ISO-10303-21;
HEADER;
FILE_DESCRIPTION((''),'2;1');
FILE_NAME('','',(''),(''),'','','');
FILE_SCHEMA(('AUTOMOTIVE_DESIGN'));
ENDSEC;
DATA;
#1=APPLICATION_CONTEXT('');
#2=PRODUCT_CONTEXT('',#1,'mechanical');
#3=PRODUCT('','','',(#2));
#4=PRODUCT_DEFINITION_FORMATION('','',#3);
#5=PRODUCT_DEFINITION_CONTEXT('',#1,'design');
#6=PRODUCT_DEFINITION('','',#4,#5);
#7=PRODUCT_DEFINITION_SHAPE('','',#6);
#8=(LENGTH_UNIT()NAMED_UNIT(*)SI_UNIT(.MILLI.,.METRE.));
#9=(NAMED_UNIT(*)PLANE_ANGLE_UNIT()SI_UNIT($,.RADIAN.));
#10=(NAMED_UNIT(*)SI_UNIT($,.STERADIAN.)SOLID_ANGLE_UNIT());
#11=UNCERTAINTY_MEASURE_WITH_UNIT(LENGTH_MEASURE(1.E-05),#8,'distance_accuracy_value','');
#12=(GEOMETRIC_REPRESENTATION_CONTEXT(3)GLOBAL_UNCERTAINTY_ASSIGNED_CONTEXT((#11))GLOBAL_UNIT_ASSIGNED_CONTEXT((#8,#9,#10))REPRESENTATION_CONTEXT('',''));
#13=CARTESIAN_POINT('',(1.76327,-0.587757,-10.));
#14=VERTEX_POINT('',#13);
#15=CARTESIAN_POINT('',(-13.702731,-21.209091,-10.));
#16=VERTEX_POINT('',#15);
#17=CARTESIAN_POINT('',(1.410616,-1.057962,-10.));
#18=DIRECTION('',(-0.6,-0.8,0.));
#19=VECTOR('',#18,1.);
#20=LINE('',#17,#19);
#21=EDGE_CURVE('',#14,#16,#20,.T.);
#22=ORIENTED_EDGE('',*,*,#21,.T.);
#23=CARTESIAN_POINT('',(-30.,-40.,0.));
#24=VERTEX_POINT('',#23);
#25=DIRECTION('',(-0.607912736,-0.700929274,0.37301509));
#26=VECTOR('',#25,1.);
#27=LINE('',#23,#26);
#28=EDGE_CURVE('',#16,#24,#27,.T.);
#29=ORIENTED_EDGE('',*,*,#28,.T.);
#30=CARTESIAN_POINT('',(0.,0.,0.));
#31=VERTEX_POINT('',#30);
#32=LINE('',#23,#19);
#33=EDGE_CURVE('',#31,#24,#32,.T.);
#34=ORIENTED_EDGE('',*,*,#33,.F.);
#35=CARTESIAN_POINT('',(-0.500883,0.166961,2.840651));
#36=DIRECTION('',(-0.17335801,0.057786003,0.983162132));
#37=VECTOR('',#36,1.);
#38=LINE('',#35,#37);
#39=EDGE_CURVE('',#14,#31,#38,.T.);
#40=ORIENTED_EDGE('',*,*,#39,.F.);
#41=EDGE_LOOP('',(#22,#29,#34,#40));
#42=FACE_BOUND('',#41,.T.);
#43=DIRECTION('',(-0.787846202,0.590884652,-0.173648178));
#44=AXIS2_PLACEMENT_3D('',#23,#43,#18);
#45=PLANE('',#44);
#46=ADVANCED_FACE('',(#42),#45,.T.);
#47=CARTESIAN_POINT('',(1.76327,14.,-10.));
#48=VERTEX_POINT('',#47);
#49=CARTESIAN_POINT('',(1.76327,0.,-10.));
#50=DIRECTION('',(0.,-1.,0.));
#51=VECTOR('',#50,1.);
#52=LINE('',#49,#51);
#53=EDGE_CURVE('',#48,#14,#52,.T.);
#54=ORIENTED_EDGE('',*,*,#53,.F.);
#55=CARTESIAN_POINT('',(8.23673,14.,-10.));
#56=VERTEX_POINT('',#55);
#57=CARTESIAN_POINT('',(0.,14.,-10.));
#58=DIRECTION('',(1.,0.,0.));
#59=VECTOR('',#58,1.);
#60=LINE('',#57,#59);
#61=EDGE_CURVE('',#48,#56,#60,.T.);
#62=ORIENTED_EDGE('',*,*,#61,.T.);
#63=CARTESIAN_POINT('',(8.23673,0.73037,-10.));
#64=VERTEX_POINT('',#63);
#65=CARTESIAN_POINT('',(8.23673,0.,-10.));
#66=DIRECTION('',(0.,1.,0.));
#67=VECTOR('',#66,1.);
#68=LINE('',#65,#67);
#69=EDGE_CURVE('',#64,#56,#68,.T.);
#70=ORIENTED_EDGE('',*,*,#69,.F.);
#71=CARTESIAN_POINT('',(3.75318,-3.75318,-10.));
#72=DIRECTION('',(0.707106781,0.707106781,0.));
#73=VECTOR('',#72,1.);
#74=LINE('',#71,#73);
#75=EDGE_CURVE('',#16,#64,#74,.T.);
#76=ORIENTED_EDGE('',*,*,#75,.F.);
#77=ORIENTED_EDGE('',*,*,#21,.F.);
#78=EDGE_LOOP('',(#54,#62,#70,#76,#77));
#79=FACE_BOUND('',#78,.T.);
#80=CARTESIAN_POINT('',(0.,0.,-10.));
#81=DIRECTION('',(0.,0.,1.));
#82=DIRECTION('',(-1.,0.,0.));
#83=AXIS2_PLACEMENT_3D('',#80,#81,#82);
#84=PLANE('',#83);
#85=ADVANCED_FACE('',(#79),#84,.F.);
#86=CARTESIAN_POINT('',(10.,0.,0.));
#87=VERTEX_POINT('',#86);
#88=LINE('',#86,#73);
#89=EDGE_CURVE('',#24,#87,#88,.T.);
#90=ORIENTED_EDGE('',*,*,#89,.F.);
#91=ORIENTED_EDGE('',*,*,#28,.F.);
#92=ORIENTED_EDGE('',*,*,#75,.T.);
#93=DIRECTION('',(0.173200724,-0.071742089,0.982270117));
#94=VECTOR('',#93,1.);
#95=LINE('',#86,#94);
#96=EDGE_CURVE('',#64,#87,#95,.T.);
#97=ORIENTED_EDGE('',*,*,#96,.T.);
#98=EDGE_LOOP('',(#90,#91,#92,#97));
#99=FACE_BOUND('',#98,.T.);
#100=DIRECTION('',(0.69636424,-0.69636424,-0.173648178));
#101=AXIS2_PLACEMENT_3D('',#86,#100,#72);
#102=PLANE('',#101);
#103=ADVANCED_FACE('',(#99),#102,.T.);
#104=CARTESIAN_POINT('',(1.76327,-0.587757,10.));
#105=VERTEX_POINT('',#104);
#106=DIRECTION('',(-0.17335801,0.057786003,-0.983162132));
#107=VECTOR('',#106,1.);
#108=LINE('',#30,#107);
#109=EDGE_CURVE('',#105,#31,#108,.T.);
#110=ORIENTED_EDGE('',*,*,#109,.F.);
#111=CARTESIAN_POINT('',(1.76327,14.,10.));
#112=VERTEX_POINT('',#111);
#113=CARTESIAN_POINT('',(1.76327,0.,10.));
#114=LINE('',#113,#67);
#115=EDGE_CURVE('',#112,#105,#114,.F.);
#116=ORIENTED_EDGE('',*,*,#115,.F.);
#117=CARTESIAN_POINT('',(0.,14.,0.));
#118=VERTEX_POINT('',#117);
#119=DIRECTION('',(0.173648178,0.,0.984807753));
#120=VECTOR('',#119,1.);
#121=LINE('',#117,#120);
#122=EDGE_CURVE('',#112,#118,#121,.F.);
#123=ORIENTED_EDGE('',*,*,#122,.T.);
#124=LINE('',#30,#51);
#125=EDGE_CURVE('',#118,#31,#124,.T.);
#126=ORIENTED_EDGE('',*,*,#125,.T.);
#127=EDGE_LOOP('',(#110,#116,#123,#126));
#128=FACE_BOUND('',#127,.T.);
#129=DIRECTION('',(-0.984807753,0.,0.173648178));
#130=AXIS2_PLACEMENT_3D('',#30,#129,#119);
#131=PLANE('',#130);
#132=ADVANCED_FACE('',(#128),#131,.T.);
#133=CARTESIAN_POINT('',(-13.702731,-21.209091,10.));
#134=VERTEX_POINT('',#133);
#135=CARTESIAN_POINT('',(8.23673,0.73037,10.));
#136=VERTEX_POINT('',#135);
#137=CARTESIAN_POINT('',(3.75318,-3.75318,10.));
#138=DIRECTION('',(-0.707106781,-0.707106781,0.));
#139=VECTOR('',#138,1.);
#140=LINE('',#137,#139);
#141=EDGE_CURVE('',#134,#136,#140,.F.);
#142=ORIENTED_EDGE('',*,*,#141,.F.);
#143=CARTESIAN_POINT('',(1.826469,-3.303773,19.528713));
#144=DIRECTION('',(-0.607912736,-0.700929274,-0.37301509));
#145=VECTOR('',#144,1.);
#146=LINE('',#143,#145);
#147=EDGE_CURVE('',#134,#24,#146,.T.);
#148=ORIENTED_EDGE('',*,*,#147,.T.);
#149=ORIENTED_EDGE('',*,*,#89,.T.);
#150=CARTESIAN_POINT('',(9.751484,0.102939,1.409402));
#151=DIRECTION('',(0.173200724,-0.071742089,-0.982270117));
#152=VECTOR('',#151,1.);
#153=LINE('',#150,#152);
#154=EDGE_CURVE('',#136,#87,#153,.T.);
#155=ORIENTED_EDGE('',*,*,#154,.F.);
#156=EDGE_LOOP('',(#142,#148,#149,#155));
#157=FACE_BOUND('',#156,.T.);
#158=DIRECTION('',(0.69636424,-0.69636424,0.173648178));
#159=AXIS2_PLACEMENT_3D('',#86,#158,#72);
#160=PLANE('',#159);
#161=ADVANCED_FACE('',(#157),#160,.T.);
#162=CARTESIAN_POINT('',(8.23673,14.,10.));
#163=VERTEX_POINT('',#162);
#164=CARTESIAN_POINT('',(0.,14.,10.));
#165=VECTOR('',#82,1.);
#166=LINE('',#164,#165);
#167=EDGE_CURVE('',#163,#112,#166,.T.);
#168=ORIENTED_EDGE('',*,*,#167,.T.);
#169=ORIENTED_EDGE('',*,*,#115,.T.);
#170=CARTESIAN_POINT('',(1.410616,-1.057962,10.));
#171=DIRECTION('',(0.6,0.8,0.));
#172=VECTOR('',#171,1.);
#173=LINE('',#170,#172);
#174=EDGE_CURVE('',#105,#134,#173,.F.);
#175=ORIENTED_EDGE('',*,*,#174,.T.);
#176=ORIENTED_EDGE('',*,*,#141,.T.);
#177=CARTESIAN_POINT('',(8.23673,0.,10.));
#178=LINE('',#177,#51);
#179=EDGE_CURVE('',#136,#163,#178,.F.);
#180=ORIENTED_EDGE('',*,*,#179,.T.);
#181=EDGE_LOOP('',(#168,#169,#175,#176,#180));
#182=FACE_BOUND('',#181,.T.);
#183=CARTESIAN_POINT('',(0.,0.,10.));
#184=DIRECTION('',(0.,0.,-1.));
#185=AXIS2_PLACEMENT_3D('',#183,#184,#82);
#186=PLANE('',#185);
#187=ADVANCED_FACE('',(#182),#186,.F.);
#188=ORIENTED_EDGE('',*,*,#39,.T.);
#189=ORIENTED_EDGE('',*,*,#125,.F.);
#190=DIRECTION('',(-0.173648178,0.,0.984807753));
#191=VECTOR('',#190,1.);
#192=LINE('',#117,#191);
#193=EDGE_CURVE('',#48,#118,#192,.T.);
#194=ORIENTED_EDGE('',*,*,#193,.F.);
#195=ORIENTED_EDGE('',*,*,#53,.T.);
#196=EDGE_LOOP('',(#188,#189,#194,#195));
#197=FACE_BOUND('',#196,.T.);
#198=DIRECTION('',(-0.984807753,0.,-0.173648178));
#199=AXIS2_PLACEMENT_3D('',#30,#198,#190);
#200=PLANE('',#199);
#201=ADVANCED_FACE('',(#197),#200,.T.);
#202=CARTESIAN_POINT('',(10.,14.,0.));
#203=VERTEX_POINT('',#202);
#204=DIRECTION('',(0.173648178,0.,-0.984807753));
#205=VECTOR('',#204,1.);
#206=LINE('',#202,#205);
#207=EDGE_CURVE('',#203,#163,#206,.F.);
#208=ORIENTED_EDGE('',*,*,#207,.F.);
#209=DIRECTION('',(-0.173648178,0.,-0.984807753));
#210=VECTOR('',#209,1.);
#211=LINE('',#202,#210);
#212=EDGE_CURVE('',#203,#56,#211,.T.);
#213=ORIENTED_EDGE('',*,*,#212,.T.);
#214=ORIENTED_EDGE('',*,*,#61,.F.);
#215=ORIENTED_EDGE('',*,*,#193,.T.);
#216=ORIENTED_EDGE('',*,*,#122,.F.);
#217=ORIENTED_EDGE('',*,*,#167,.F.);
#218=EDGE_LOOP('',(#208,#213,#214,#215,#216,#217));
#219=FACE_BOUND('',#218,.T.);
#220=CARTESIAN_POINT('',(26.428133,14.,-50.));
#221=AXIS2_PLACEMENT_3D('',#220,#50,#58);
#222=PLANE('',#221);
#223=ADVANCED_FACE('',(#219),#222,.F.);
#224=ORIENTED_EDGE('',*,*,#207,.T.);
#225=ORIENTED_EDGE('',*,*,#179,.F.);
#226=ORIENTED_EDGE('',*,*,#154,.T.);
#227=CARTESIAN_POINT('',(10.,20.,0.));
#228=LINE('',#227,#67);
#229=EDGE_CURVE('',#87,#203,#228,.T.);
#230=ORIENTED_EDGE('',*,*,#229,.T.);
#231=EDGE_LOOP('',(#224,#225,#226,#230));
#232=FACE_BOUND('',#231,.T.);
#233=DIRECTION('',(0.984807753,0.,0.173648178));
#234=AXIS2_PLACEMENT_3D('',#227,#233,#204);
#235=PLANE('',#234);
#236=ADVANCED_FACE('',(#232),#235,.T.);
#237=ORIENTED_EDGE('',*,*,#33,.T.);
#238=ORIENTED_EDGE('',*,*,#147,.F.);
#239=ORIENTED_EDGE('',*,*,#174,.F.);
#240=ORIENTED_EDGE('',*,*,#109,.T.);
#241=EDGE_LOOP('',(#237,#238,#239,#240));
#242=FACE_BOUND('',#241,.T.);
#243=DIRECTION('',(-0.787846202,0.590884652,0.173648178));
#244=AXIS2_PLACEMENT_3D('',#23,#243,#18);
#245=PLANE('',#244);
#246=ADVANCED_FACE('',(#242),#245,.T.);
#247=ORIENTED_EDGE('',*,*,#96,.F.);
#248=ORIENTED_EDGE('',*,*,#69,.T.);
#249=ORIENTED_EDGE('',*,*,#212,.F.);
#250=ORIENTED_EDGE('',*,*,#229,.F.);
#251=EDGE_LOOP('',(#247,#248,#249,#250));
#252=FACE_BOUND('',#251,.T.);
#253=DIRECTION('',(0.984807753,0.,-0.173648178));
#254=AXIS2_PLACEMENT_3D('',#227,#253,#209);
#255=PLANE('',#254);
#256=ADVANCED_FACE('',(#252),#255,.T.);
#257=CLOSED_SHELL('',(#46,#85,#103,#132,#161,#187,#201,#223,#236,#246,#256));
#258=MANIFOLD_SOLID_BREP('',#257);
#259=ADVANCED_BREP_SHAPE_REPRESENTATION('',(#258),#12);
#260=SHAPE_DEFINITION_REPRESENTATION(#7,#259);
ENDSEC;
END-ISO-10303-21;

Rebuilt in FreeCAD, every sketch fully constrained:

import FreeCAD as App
import Part
import Sketcher
from FreeCAD import Vector
Q = App.Units.Quantity


def faces_at(feature, points):
    """Names of the faces that lie closest to the given points."""
    faces = feature.Shape.Faces
    near = lambda p: min(range(len(faces)), key=lambda i: faces[i].distToShape(Part.Vertex(*p))[0])
    return sorted({f"Face{near(p) + 1}" for p in points})


def add_polygon(sketch, points):
    """Adds a closed chain of lines whose ends are joined by coincident constraints."""
    first, n = sketch.GeometryCount, len(points)
    for a, b in zip(points, points[1:] + points[:1]):
        sketch.addGeometry(Part.LineSegment(App.Vector(*a, 0), App.Vector(*b, 0)), False)
    for i in range(n):
        sketch.addConstraint(Sketcher.Constraint("Coincident", first + i, 2, first + (i + 1) % n, 1))

doc = App.newDocument("Part")
params = doc.addObject("Spreadsheet::Sheet", "Params")
for row, (alias, value) in enumerate([
    ("sketch1_width", "10 mm"),
    ("sketch1_height", "20 mm"),
    ("sketch1_length", "50 mm"),
    ("pad1_length", "10 mm"),
    ("draft_angle", "10 deg"),
    ("sketch2_width", "10 mm"),
    ("sketch2_height", "20 mm"),
    ("sketch2_length", "50 mm"),
    ("pad2_length", "10 mm"),
    ("draft2_angle", "10 deg"),
    ("pocket1_length", "100 mm"),
], start=1):
    params.set(f"A{row}", alias)
    params.set(f"B{row}", "=" + value)
    params.setAlias(f"B{row}", alias)

body = doc.addObject("PartDesign::Body", "Body")

# Sketch on XY plane
sketch1 = body.newObject("Sketcher::SketchObject", "Sketch")
sketch1.AttachmentSupport = (doc.getObject("XY_Plane"), [""])
sketch1.MapMode = "FlatFace"
add_polygon(sketch1, [(0, 0), (-30, -40), (10, 0), (10, 20), (0, 20)])  # lines 0-4
sketch1.addConstraint([
    Sketcher.Constraint("Vertical", 2),
    Sketcher.Constraint("Horizontal", 3),
    Sketcher.Constraint("Vertical", 4),
    Sketcher.Constraint("Coincident", 4, 2, -1, 1),
    Sketcher.Constraint("PointOnObject", 1, 2, -1),
    Sketcher.Constraint("DistanceX", 3, 2, 3, 1, 10.0),
    Sketcher.Constraint("DistanceY", 2, 1, 2, 2, 20.0),
    Sketcher.Constraint("Angle", 1, Q("45 deg")),
    Sketcher.Constraint("Distance", 0, 50.0),
])
sketch1.setExpression("Constraints[10]", "Params.sketch1_width")
sketch1.setExpression("Constraints[11]", "Params.sketch1_height")
sketch1.setExpression("Constraints[13]", "Params.sketch1_length")
pad1 = body.newObject("PartDesign::Pad", "Pad")
pad1.Profile = sketch1
pad1.setExpression("Length", "Params.pad1_length")
doc.recompute()

draft = body.newObject("PartDesign::Draft", "Draft")
draft.Base = (pad1, faces_at(pad1, [
    (-15, -20, 5),
    (-10, -20, 5),
    (10, 10, 5),
    (5, 20, 5),
    (0, 10, 5),
]))
draft.NeutralPlane = (doc.getObject("XY_Plane"), [""])
draft.setExpression("Angle", "Params.draft_angle")
draft.Reversed = False
body2 = doc.addObject("PartDesign::Body", "Body001")

# Sketch on XY plane
sketch2 = body2.newObject("Sketcher::SketchObject", "Sketch001")
sketch2.AttachmentSupport = (doc.getObject("XY_Plane001"), [""])
sketch2.MapMode = "FlatFace"
add_polygon(sketch2, [(-30, -40), (0, 0), (0, 20), (10, 20), (10, 0)])  # lines 0-4
sketch2.addConstraint([
    Sketcher.Constraint("Vertical", 1),
    Sketcher.Constraint("Horizontal", 2),
    Sketcher.Constraint("Vertical", 3),
    Sketcher.Constraint("Coincident", 0, 2, -1, 1),
    Sketcher.Constraint("PointOnObject", 3, 2, -1),
    Sketcher.Constraint("DistanceX", 2, 1, 2, 2, 10.0),
    Sketcher.Constraint("DistanceY", 1, 1, 1, 2, 20.0),
    Sketcher.Constraint("Angle", 4, Q("-135 deg")),
    Sketcher.Constraint("Distance", 0, 50.0),
])
sketch2.setExpression("Constraints[10]", "Params.sketch2_width")
sketch2.setExpression("Constraints[11]", "Params.sketch2_height")
sketch2.setExpression("Constraints[13]", "Params.sketch2_length")
pad2 = body2.newObject("PartDesign::Pad", "Pad001")
pad2.Profile = sketch2
pad2.setExpression("Length", "Params.pad2_length")
pad2.Reversed = True
doc.recompute()

draft2 = body2.newObject("PartDesign::Draft", "Draft001")
draft2.Base = (pad2, faces_at(pad2, [
    (-15, -20, -5),
    (-10, -20, -5),
    (10, 10, -5),
    (5, 20, -5),
    (0, 10, -5),
]))
draft2.NeutralPlane = (doc.getObject("XY_Plane001"), [""])
draft2.setExpression("Angle", "Params.draft2_angle")
draft2.Reversed = True
doc.recompute()

boolean = body.newObject("PartDesign::Boolean", "Boolean")
boolean.Type = "Fuse"
boolean.addObjects([body2])

# Sketch on XY plane
sketch3 = body.newObject("Sketcher::SketchObject", "Sketch002")
sketch3.AttachmentSupport = (doc.getObject("XY_Plane"), [""])
sketch3.MapMode = "FlatFace"
add_polygon(sketch3, [(-18, 56), (-18, 14), (26, 14), (26, 56)])  # lines 0-3
sketch3.addConstraint([
    Sketcher.Constraint("Vertical", 0),
    Sketcher.Constraint("Horizontal", 1),
    Sketcher.Constraint("Vertical", 2),
    Sketcher.Constraint("Horizontal", 3),
    Sketcher.Constraint("DistanceY", -1, 1, 0, 2, 14.0),
    Sketcher.Constraint("DistanceX", 1, 1, 1, 2, 44.504913),
    Sketcher.Constraint("DistanceY", 0, 2, 0, 1, 42.190476),
    Sketcher.Constraint("DistanceX", 0, 2, -1, 1, 18.07678),
])
pocket1 = body.newObject("PartDesign::Pocket", "Pocket")
pocket1.Profile = sketch3
pocket1.setExpression("Length", "Params.pocket1_length")
pocket1.Midplane = True

doc.recompute()
